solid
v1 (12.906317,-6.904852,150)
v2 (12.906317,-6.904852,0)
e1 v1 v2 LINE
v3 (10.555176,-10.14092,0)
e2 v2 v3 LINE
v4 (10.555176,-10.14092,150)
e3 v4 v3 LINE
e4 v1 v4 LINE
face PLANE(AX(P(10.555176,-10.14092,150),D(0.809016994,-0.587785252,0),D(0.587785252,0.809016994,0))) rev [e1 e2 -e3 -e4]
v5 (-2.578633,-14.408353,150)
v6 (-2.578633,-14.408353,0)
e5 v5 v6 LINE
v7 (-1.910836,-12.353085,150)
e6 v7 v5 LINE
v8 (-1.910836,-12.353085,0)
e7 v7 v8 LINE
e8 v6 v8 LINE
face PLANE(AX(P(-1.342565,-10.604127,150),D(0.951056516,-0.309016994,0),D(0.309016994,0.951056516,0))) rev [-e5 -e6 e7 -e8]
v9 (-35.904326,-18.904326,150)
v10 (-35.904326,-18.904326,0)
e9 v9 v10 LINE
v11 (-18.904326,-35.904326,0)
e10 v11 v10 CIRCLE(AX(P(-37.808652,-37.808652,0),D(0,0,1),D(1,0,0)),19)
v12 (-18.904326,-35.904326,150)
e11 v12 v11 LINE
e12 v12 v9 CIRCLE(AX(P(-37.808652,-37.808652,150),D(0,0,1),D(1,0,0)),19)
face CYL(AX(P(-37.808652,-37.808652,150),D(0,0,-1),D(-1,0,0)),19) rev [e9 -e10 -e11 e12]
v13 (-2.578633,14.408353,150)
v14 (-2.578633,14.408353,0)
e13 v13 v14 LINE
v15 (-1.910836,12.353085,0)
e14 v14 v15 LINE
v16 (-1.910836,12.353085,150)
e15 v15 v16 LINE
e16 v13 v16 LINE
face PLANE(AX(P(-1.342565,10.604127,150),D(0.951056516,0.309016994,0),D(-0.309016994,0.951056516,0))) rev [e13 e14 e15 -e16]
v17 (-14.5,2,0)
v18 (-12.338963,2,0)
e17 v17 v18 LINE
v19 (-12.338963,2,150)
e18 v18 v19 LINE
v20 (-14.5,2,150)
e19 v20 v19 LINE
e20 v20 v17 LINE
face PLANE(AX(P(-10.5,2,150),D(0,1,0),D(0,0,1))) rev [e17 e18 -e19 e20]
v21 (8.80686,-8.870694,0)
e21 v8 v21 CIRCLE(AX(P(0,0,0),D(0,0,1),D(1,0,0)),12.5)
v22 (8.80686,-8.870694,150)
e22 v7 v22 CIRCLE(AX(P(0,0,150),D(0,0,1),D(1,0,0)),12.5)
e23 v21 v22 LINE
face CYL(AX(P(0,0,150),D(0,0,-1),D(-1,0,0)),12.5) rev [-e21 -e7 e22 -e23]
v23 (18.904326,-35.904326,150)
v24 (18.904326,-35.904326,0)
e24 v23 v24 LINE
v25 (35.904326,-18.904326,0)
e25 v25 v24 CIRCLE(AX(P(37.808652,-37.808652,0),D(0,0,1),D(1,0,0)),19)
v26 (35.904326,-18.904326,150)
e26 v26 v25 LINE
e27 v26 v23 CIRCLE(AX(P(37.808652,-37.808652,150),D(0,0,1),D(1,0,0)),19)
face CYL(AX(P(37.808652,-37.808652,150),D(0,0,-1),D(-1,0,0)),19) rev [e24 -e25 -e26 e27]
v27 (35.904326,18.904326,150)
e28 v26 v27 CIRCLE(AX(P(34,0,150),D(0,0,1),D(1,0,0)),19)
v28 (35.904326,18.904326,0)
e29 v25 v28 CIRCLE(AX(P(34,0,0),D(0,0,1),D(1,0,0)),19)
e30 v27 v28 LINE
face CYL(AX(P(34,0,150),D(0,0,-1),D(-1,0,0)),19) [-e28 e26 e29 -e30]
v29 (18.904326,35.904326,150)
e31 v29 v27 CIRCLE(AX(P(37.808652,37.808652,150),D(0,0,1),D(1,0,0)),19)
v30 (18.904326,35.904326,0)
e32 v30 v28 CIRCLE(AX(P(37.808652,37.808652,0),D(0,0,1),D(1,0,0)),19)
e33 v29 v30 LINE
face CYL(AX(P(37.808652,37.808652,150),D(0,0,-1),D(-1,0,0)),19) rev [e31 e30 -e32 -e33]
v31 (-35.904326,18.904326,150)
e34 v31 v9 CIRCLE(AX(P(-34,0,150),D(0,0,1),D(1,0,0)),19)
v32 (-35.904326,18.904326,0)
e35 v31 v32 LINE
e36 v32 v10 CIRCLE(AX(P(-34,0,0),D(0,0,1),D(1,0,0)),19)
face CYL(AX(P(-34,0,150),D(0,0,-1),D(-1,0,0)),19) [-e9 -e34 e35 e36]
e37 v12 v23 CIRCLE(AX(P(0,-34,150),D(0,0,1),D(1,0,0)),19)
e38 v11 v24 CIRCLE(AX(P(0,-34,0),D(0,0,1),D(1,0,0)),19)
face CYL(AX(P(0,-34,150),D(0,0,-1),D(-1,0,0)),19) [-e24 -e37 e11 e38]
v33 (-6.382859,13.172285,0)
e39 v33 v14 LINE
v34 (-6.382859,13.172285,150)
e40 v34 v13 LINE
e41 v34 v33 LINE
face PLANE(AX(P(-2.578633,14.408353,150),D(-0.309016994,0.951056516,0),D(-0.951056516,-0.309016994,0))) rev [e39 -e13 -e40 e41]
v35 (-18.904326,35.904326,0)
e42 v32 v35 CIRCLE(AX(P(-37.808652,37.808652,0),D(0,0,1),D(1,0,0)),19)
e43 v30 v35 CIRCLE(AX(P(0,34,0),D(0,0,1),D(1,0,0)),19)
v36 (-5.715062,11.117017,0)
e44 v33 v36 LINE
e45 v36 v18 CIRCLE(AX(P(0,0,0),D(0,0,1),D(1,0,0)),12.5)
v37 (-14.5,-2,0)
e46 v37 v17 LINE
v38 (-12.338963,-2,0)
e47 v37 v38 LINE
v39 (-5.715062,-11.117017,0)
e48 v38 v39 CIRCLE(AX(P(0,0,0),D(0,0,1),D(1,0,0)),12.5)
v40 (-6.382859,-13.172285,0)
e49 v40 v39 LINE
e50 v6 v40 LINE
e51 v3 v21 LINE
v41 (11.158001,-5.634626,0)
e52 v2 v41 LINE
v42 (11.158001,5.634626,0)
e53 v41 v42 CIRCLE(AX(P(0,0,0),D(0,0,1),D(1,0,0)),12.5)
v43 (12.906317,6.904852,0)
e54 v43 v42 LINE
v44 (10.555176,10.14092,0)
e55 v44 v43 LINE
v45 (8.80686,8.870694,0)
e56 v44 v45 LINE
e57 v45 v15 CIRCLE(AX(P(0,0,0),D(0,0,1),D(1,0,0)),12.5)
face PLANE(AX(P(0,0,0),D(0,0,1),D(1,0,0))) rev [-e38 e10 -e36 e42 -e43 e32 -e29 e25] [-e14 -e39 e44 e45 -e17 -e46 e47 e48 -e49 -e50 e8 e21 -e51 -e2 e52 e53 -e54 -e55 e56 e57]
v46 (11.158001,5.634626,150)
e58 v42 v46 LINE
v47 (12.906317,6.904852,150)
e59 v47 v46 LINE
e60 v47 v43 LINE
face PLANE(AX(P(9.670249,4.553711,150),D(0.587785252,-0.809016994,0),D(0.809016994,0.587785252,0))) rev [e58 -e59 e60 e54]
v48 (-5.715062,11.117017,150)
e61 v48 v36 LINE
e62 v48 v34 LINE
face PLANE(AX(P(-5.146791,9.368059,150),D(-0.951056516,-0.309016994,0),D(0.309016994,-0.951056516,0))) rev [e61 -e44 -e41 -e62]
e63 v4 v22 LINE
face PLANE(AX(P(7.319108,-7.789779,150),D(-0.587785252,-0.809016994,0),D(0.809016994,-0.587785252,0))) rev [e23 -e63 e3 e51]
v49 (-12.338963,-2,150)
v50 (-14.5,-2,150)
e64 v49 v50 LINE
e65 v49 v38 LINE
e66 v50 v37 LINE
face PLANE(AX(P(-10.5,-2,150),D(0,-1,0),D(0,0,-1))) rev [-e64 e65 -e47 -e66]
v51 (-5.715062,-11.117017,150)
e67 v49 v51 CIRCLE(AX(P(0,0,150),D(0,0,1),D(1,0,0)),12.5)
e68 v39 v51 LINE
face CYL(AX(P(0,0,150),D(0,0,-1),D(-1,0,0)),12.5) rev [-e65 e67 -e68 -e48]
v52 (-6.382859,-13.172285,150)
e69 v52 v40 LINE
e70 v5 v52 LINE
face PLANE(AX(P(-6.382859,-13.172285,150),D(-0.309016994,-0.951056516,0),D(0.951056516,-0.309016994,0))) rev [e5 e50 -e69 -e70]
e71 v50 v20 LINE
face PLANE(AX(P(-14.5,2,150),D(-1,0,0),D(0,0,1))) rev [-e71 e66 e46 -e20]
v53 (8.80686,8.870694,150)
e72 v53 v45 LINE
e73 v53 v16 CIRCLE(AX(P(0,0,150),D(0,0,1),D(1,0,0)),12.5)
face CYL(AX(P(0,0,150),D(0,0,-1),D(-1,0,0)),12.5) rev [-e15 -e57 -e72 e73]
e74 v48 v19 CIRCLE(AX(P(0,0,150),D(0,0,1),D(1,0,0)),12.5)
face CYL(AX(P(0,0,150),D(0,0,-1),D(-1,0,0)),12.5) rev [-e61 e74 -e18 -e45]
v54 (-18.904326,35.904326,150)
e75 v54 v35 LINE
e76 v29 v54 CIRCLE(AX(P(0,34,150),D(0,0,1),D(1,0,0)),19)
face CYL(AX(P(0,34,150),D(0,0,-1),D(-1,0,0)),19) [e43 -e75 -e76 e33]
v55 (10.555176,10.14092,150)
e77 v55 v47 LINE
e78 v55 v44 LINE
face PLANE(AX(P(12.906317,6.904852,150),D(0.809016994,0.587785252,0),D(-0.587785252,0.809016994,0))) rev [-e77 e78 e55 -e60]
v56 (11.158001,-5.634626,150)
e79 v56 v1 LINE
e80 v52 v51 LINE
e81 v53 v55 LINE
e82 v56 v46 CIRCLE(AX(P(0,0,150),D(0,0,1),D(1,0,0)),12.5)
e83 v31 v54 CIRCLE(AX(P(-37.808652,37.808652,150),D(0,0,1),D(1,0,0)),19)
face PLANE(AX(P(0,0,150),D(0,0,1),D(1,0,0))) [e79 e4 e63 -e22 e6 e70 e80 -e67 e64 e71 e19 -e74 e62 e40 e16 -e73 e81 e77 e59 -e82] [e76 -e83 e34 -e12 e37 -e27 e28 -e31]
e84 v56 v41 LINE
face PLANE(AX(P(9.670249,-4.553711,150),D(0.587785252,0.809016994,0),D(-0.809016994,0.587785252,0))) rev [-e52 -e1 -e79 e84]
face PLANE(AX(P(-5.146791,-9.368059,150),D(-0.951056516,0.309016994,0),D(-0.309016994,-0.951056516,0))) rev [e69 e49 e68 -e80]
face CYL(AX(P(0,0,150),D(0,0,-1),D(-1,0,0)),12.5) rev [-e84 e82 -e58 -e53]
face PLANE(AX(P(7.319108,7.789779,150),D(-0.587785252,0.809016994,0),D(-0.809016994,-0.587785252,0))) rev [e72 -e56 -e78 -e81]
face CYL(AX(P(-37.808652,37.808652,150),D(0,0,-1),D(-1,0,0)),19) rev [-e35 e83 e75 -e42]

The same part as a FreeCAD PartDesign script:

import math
import FreeCAD as App
import Part
import Sketcher
from FreeCAD import Vector
Q = App.Units.Quantity

doc = App.newDocument("Part")
body = doc.addObject("PartDesign::Body", "Body")

sketch1 = body.newObject("Sketcher::SketchObject", "Sketch")
sketch1.AttachmentSupport = (doc.getObject("XY_Plane"), [""])
sketch1.MapMode = "FlatFace"
sketch1.addGeometry([
    Part.ArcOfCircle(Part.Circle(Vector(38, 38, 0), Vector(0, 0, 1), 19), math.radians(-174), math.radians(-96)),
    Part.ArcOfCircle(Part.Circle(Vector(0, 34, 0), Vector(0, 0, 1), 19), math.radians(6), math.radians(174)),
    Part.ArcOfCircle(Part.Circle(Vector(-38, 38, 0), Vector(0, 0, 1), 19), math.radians(-84), math.radians(-6)),
    Part.ArcOfCircle(Part.Circle(Vector(-34, 0, 0), Vector(0, 0, 1), 19), math.radians(96), math.radians(264)),
    Part.ArcOfCircle(Part.Circle(Vector(-38, -38, 0), Vector(0, 0, 1), 19), math.radians(6), math.radians(84)),
    Part.ArcOfCircle(Part.Circle(Vector(0, -34, 0), Vector(0, 0, 1), 19), math.radians(-174), math.radians(-6)),
    Part.ArcOfCircle(Part.Circle(Vector(38, -38, 0), Vector(0, 0, 1), 19), math.radians(96), math.radians(174)),
    Part.ArcOfCircle(Part.Circle(Vector(34, 0, 0), Vector(0, 0, 1), 19), math.radians(-84), math.radians(84)),
    Part.Circle(Vector(0, 0, 0), Vector(0, 0, 1), 12),
], False)
sketch1.addConstraint([
    Sketcher.Constraint("Tangent", 0, 1, 1, 1),
    Sketcher.Constraint("Tangent", 1, 2, 2, 2),
    Sketcher.Constraint("Tangent", 2, 1, 3, 1),
    Sketcher.Constraint("Tangent", 3, 2, 4, 2),
    Sketcher.Constraint("Tangent", 4, 1, 5, 1),
    Sketcher.Constraint("Tangent", 5, 2, 6, 2),
    Sketcher.Constraint("Tangent", 6, 1, 7, 1),
    Sketcher.Constraint("Tangent", 7, 2, 0, 2),
    Sketcher.Constraint("Coincident", 8, 3, -1, 1),
    Sketcher.Constraint("Equal", 0, 1),
    Sketcher.Constraint("Equal", 1, 2),
    Sketcher.Constraint("Equal", 2, 3),
    Sketcher.Constraint("Equal", 3, 4),
    Sketcher.Constraint("Equal", 4, 5),
    Sketcher.Constraint("Equal", 5, 6),
    Sketcher.Constraint("Equal", 6, 7),
    Sketcher.Constraint("Symmetric", 0, 3, 4, 3, -1, 1),
    Sketcher.Constraint("Symmetric", 2, 3, 6, 3, -1, 1),
    Sketcher.Constraint("Symmetric", 0, 3, 2, 3, -2),
    Sketcher.Constraint("Diameter", 8, Q("25 mm")),
    Sketcher.Constraint("Radius", 0, Q("19 mm")),
    Sketcher.Constraint("DistanceY", -1, 1, 1, 3, Q("34 mm")),
    Sketcher.Constraint("DistanceX", 3, 3, -1, 1, Q("34 mm")),
])
pad1 = body.newObject("PartDesign::Pad", "Pad")
pad1.Profile = sketch1
pad1.Length = 150

sketch2 = body.newObject("Sketcher::SketchObject", "Sketch001")
sketch2.AttachmentSupport = (doc.getObject("XY_Plane"), [""])
sketch2.MapMode = "FlatFace"
sketch2.addGeometry([
    Part.LineSegment(Vector(-10.5, 2, 0), Vector(-10.5, -2, 0)),
    Part.LineSegment(Vector(-10.5, -2, 0), Vector(-14.5, -2, 0)),
    Part.LineSegment(Vector(-14.5, -2, 0), Vector(-14.5, 2, 0)),
    Part.LineSegment(Vector(-14.5, 2, 0), Vector(-10.5, 2, 0)),
], False)
sketch2.addConstraint([
    Sketcher.Constraint("Coincident", 0, 2, 1, 1),
    Sketcher.Constraint("Coincident", 1, 2, 2, 1),
    Sketcher.Constraint("Coincident", 2, 2, 3, 1),
    Sketcher.Constraint("Coincident", 3, 2, 0, 1),
    Sketcher.Constraint("Vertical", 0),
    Sketcher.Constraint("Horizontal", 1),
    Sketcher.Constraint("Vertical", 2),
    Sketcher.Constraint("Horizontal", 3),
    Sketcher.Constraint("Equal", 3, 0),
    Sketcher.Constraint("DistanceX", 1, 2, 1, 1, Q("4 mm")),
    Sketcher.Constraint("DistanceY", 0, 2, -1, 1, Q("2 mm")),
    Sketcher.Constraint("DistanceX", 0, 2, -1, 1, Q("10.5 mm")),
])
pocket1 = body.newObject("PartDesign::Pocket", "Pocket")
pocket1.Profile = sketch2
pocket1.Type = "ThroughAll"
pocket1.Reversed = True
doc.recompute()

polarpattern = body.newObject("PartDesign::PolarPattern", "PolarPattern")
polarpattern.Originals = [pocket1]
polarpattern.Axis = (doc.getObject("Z_Axis"), [""])
polarpattern.Angle = 360
polarpattern.Occurrences = 5
body.Tip = polarpattern

doc.recompute()
